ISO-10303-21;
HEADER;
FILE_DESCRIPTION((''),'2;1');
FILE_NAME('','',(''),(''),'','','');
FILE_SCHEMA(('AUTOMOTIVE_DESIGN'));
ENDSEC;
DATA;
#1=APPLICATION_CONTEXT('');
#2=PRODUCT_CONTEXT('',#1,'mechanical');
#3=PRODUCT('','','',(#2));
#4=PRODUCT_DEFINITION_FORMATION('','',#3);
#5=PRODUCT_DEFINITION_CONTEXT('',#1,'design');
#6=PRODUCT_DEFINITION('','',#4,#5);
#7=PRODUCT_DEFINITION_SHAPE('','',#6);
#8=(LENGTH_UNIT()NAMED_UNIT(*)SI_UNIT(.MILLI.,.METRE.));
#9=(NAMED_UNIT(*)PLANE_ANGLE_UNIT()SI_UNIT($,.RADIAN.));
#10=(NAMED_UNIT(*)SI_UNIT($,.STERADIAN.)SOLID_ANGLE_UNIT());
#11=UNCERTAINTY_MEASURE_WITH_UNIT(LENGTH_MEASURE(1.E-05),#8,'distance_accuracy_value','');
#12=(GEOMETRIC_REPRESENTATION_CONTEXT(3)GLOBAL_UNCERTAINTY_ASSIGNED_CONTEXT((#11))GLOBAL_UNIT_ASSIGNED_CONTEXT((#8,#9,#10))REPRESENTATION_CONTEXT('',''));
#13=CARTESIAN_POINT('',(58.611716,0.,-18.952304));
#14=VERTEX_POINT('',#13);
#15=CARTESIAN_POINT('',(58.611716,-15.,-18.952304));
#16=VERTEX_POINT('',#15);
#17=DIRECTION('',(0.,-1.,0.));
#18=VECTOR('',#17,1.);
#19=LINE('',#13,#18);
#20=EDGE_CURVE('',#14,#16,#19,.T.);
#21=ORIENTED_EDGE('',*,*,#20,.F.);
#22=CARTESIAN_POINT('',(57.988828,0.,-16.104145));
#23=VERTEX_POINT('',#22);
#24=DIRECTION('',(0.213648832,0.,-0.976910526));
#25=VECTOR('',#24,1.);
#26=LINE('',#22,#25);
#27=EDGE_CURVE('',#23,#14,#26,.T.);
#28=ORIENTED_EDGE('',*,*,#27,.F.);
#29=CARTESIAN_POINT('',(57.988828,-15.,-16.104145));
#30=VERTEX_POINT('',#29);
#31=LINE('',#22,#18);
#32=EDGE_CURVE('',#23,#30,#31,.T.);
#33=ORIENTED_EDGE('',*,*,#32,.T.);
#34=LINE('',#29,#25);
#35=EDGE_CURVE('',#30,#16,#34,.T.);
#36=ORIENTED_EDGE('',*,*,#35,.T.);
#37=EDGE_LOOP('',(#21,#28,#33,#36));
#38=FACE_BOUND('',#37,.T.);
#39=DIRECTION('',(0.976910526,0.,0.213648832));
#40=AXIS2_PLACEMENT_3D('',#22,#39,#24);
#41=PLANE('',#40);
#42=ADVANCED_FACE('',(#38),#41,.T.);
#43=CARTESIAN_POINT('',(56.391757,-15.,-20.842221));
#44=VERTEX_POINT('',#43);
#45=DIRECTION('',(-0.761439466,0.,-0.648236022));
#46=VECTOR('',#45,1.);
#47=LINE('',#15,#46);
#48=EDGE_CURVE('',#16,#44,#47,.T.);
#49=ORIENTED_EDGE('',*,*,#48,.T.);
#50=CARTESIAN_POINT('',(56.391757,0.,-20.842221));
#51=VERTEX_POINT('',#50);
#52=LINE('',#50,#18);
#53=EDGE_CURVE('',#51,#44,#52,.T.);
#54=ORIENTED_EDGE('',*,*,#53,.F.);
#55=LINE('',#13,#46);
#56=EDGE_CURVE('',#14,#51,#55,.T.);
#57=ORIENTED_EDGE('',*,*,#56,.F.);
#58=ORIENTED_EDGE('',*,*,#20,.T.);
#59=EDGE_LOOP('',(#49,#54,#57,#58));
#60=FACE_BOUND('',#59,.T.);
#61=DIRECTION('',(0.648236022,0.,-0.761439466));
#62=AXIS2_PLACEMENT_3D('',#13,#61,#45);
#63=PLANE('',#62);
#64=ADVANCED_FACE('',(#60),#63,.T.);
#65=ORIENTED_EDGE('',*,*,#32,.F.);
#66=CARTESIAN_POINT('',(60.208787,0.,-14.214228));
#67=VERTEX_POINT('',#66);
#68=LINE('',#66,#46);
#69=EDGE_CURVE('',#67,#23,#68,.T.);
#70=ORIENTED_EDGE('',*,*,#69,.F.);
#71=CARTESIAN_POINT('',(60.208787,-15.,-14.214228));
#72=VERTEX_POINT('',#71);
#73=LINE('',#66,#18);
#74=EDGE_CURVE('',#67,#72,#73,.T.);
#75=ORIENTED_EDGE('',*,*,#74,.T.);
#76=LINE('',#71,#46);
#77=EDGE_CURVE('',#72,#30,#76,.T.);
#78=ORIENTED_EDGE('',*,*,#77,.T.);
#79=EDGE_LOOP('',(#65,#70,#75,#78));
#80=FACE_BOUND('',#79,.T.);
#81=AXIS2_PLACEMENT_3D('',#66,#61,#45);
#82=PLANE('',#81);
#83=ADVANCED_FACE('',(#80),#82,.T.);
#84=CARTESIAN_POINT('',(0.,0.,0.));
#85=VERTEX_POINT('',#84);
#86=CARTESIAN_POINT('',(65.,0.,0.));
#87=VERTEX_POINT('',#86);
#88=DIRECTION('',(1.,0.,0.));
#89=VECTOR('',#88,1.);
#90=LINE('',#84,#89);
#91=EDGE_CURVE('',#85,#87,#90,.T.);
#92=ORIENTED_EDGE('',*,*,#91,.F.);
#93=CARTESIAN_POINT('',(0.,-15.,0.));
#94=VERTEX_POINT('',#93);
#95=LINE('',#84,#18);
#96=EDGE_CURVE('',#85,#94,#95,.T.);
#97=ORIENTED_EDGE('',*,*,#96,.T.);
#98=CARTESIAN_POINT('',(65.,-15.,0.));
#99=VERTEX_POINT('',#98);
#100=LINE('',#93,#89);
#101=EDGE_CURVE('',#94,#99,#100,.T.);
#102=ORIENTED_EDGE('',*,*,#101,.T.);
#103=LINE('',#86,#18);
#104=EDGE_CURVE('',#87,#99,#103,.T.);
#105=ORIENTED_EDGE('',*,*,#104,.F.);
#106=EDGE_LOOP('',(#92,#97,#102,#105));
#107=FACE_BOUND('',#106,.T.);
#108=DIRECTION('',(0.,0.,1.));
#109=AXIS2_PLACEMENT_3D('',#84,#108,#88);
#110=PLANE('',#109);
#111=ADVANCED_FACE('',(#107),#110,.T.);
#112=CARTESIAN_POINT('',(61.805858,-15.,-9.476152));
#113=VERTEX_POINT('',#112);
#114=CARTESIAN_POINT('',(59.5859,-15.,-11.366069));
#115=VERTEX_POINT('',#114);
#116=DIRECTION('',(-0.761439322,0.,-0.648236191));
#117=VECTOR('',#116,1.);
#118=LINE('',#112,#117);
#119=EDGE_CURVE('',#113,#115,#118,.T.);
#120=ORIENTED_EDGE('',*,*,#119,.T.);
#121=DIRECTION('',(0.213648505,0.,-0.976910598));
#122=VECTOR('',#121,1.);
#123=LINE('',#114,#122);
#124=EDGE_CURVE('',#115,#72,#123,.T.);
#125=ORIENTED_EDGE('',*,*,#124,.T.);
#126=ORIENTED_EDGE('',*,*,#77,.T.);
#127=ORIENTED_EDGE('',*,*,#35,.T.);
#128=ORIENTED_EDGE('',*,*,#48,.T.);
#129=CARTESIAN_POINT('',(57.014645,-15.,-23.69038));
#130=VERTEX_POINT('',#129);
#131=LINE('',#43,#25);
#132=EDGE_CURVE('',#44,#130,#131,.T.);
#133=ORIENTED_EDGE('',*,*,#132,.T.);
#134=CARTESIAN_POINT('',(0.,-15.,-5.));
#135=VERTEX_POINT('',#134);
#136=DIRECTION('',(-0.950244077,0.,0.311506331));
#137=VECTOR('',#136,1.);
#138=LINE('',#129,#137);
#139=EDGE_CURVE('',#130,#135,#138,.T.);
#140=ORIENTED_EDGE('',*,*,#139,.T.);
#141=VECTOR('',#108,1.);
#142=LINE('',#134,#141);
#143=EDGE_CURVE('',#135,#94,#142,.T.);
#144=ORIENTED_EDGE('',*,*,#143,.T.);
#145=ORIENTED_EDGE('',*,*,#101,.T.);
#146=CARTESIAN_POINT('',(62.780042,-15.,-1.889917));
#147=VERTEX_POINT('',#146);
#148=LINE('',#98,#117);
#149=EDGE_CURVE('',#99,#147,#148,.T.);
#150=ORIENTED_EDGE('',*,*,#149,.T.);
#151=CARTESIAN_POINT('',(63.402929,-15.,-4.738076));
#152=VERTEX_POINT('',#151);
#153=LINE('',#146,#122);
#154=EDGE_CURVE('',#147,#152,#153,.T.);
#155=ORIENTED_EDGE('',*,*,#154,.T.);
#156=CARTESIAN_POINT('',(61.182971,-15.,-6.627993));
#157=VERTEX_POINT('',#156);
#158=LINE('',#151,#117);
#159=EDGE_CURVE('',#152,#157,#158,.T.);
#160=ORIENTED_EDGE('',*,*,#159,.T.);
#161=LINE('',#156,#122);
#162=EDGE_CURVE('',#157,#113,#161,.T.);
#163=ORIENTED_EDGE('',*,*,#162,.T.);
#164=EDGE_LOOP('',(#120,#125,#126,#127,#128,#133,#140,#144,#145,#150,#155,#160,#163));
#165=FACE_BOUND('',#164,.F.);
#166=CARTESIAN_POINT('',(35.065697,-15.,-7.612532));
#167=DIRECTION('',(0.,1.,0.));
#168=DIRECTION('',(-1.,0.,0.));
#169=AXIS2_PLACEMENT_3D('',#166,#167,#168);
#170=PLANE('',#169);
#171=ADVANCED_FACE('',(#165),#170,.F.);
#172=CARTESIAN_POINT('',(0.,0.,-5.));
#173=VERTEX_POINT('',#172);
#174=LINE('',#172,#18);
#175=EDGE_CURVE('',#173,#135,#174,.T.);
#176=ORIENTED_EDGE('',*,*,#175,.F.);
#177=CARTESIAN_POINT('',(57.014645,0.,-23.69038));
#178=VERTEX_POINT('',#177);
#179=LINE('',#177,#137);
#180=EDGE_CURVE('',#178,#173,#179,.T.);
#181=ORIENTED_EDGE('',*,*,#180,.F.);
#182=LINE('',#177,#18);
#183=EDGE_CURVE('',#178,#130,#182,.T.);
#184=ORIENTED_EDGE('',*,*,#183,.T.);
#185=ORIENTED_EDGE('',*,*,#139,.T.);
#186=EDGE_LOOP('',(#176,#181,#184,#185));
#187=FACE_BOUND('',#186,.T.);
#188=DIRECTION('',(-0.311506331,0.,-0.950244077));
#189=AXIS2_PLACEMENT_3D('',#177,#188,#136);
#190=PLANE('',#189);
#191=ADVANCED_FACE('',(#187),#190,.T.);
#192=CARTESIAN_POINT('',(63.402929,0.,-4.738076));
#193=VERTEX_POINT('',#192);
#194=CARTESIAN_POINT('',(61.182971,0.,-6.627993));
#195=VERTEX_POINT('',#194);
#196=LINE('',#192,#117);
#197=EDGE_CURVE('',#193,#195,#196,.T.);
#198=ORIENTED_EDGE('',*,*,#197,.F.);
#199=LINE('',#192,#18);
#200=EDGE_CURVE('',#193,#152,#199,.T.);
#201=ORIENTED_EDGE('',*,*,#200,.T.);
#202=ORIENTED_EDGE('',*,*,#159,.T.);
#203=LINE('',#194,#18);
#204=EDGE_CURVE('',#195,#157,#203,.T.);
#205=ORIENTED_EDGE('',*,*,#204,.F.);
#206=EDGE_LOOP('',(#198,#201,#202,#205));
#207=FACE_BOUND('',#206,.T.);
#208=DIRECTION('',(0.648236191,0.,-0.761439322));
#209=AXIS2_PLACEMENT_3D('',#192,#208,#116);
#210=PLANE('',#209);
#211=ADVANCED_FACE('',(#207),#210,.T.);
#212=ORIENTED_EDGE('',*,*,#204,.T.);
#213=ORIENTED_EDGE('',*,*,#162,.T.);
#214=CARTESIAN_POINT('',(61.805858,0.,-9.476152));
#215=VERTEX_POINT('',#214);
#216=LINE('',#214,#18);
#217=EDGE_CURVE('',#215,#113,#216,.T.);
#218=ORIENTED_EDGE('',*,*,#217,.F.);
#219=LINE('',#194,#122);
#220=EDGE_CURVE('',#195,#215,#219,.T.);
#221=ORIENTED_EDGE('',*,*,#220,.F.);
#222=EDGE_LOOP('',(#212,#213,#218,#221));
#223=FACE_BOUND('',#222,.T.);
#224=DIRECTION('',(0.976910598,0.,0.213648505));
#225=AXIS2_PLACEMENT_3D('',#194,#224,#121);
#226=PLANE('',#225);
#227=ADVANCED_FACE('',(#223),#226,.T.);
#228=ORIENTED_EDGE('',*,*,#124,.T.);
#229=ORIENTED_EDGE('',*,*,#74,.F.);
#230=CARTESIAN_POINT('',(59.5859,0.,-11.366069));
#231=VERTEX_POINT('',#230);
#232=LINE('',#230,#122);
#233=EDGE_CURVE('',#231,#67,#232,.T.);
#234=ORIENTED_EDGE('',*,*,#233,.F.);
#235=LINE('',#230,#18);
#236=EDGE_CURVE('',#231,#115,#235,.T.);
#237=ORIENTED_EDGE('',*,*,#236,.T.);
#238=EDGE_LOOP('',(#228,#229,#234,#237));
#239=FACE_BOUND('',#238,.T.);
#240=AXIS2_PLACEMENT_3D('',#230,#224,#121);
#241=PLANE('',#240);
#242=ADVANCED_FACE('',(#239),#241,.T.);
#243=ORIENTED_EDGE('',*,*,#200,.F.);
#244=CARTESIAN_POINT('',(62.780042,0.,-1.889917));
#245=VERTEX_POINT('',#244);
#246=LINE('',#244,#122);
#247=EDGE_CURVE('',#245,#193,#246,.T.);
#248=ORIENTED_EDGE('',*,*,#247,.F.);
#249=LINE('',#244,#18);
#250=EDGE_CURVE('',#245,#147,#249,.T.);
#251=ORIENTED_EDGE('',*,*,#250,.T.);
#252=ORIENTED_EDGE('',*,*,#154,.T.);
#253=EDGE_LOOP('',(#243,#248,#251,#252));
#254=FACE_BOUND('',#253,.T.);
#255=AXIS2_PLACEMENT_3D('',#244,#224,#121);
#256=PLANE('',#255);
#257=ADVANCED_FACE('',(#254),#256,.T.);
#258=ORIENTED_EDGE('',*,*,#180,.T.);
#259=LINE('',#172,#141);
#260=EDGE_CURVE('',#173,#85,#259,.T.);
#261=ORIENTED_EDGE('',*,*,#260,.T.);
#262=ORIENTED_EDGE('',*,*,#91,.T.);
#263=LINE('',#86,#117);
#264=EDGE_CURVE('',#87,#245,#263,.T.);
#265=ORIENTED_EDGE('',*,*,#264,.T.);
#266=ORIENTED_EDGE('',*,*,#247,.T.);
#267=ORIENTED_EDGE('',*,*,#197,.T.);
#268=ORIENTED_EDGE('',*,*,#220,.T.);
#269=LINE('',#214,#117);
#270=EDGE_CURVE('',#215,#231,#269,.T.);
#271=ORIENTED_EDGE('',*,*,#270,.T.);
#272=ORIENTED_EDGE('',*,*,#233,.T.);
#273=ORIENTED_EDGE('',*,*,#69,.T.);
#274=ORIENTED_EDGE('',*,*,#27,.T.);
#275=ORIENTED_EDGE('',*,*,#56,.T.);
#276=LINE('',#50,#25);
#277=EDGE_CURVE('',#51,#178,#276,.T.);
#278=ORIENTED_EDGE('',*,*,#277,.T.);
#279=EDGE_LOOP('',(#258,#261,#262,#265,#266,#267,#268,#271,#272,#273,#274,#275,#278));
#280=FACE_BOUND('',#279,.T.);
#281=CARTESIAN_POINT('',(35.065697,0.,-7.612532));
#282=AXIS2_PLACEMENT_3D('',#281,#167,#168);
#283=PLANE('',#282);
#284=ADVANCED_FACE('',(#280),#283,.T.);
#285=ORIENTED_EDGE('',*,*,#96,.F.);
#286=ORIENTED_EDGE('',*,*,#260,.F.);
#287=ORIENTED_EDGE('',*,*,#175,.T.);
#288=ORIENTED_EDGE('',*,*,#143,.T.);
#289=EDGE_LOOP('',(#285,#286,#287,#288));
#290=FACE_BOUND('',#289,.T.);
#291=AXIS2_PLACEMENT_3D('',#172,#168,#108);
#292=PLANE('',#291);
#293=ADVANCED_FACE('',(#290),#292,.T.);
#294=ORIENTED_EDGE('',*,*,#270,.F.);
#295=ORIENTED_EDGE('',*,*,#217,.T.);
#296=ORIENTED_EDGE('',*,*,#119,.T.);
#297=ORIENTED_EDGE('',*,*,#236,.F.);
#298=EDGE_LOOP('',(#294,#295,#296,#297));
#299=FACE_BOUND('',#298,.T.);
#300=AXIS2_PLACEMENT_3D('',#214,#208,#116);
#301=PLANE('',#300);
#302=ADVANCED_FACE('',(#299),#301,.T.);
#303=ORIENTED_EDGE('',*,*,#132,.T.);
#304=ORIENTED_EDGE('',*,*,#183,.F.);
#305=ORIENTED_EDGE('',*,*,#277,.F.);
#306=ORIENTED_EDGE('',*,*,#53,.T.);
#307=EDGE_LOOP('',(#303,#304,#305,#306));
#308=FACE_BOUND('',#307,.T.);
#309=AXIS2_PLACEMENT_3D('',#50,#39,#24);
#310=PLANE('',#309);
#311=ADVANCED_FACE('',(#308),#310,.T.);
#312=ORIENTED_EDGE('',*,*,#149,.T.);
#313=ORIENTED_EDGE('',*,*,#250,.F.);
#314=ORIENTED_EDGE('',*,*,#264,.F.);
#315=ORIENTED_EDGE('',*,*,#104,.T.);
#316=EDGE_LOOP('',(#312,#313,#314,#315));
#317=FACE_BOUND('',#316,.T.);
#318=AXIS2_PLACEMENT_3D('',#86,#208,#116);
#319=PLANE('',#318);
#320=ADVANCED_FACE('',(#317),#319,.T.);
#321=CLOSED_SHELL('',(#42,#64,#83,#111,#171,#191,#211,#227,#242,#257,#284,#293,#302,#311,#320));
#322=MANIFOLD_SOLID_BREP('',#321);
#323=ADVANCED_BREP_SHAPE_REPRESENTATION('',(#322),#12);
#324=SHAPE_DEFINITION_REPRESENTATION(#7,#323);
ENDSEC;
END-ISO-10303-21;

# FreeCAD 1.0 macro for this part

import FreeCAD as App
import Part
import Sketcher
Q = App.Units.Quantity

doc = App.newDocument("Part")
params = doc.addObject("Spreadsheet::Sheet", "Params")
for row, (alias, value) in enumerate([
    ("sketch1_width", "65 mm"),
    ("sketch1_height", "5 mm"),
    ("sketch1_length", "60 mm"),
    ("pad1_length", "15 mm"),
], start=1):
    params.set(f"A{row}", alias)
    params.set(f"B{row}", "=" + value)
    params.setAlias(f"B{row}", alias)

body = doc.addObject("PartDesign::Body", "Body")

# Sketch on XZ plane
sketch1 = body.newObject("Sketcher::SketchObject", "Sketch")
sketch1.AttachmentSupport = (doc.getObject("XZ_Plane"), [""])
sketch1.MapMode = "FlatFace"
sketch1.addGeometry(Part.LineSegment(App.Vector(65, 0, 0), App.Vector(0, 0, 0)), False)
sketch1.addGeometry(Part.LineSegment(App.Vector(0, 0, 0), App.Vector(0, -5, 0)), False)
sketch1.addGeometry(Part.LineSegment(App.Vector(0, -5, 0), App.Vector(57, -23.7, 0)), False)
sketch1.addGeometry(Part.LineSegment(App.Vector(57, -23.7, 0), App.Vector(56.4, -20.8, 0)), False)
sketch1.addGeometry(Part.LineSegment(App.Vector(56.4, -20.8, 0), App.Vector(58.6, -19, 0)), False)
sketch1.addGeometry(Part.LineSegment(App.Vector(58.6, -19, 0), App.Vector(58, -16.1, 0)), False)
sketch1.addGeometry(Part.LineSegment(App.Vector(58, -16.1, 0), App.Vector(60.2, -14.2, 0)), False)
sketch1.addGeometry(Part.LineSegment(App.Vector(60.2, -14.2, 0), App.Vector(59.6, -11.4, 0)), False)
sketch1.addGeometry(Part.LineSegment(App.Vector(59.6, -11.4, 0), App.Vector(61.8, -9.5, 0)), False)
sketch1.addGeometry(Part.LineSegment(App.Vector(61.8, -9.5, 0), App.Vector(61.2, -6.6, 0)), False)
sketch1.addGeometry(Part.LineSegment(App.Vector(61.2, -6.6, 0), App.Vector(63.4, -4.7, 0)), False)
sketch1.addGeometry(Part.LineSegment(App.Vector(63.4, -4.7, 0), App.Vector(62.8, -1.9, 0)), False)
sketch1.addGeometry(Part.LineSegment(App.Vector(62.8, -1.9, 0), App.Vector(65, 0, 0)), False)
sketch1.addConstraint(Sketcher.Constraint("Coincident", 0, 2, 1, 1))
sketch1.addConstraint(Sketcher.Constraint("Coincident", 1, 2, 2, 1))
sketch1.addConstraint(Sketcher.Constraint("Coincident", 2, 2, 3, 1))
sketch1.addConstraint(Sketcher.Constraint("Coincident", 3, 2, 4, 1))
sketch1.addConstraint(Sketcher.Constraint("Coincident", 4, 2, 5, 1))
sketch1.addConstraint(Sketcher.Constraint("Coincident", 5, 2, 6, 1))
sketch1.addConstraint(Sketcher.Constraint("Coincident", 6, 2, 7, 1))
sketch1.addConstraint(Sketcher.Constraint("Coincident", 7, 2, 8, 1))
sketch1.addConstraint(Sketcher.Constraint("Coincident", 8, 2, 9, 1))
sketch1.addConstraint(Sketcher.Constraint("Coincident", 9, 2, 10, 1))
sketch1.addConstraint(Sketcher.Constraint("Coincident", 10, 2, 11, 1))
sketch1.addConstraint(Sketcher.Constraint("Coincident", 11, 2, 12, 1))
sketch1.addConstraint(Sketcher.Constraint("Coincident", 12, 2, 0, 1))
sketch1.addConstraint(Sketcher.Constraint("Horizontal", 0))
sketch1.addConstraint(Sketcher.Constraint("Vertical", 1))
sketch1.addConstraint(Sketcher.Constraint("Coincident", 0, 2, -1, 1))
sketch1.addConstraint(Sketcher.Constraint("Parallel", 3, 5))
sketch1.addConstraint(Sketcher.Constraint("Parallel", 4, 6))
sketch1.addConstraint(Sketcher.Constraint("Parallel", 5, 7))
sketch1.addConstraint(Sketcher.Constraint("Parallel", 6, 8))
sketch1.addConstraint(Sketcher.Constraint("Parallel", 7, 9))
sketch1.addConstraint(Sketcher.Constraint("Parallel", 8, 10))
sketch1.addConstraint(Sketcher.Constraint("Parallel", 9, 11))
sketch1.addConstraint(Sketcher.Constraint("Parallel", 10, 12))
sketch1.addConstraint(Sketcher.Constraint("Equal", 3, 4))
sketch1.addConstraint(Sketcher.Constraint("Equal", 4, 5))
sketch1.addConstraint(Sketcher.Constraint("Equal", 5, 6))
sketch1.addConstraint(Sketcher.Constraint("Equal", 6, 7))
sketch1.addConstraint(Sketcher.Constraint("Equal", 7, 8))
sketch1.addConstraint(Sketcher.Constraint("Equal", 8, 9))
sketch1.addConstraint(Sketcher.Constraint("Equal", 9, 10))
sketch1.addConstraint(Sketcher.Constraint("Equal", 10, 11))
sketch1.addConstraint(Sketcher.Constraint("Equal", 11, 12))
sketch1.addConstraint(Sketcher.Constraint("DistanceX", 0, 2, 0, 1, Q("65 mm")))
sketch1.addConstraint(Sketcher.Constraint("DistanceY", 1, 2, 1, 1, Q("5 mm")))
sketch1.addConstraint(Sketcher.Constraint("Distance", 2, Q("60 mm")))
sketch1.addConstraint(Sketcher.Constraint("DistanceX", -1, 1, 7, 2, Q("59.5859 mm")))
sketch1.addConstraint(Sketcher.Constraint("DistanceY", 2, 2, -1, 1, Q("23.69038 mm")))
sketch1.setExpression("Constraints[33]", "Params.sketch1_width")
sketch1.setExpression("Constraints[34]", "Params.sketch1_height")
sketch1.setExpression("Constraints[35]", "Params.sketch1_length")
pad1 = body.newObject("PartDesign::Pad", "Pad")
pad1.Profile = sketch1
pad1.setExpression("Length", "Params.pad1_length")

doc.recompute()
